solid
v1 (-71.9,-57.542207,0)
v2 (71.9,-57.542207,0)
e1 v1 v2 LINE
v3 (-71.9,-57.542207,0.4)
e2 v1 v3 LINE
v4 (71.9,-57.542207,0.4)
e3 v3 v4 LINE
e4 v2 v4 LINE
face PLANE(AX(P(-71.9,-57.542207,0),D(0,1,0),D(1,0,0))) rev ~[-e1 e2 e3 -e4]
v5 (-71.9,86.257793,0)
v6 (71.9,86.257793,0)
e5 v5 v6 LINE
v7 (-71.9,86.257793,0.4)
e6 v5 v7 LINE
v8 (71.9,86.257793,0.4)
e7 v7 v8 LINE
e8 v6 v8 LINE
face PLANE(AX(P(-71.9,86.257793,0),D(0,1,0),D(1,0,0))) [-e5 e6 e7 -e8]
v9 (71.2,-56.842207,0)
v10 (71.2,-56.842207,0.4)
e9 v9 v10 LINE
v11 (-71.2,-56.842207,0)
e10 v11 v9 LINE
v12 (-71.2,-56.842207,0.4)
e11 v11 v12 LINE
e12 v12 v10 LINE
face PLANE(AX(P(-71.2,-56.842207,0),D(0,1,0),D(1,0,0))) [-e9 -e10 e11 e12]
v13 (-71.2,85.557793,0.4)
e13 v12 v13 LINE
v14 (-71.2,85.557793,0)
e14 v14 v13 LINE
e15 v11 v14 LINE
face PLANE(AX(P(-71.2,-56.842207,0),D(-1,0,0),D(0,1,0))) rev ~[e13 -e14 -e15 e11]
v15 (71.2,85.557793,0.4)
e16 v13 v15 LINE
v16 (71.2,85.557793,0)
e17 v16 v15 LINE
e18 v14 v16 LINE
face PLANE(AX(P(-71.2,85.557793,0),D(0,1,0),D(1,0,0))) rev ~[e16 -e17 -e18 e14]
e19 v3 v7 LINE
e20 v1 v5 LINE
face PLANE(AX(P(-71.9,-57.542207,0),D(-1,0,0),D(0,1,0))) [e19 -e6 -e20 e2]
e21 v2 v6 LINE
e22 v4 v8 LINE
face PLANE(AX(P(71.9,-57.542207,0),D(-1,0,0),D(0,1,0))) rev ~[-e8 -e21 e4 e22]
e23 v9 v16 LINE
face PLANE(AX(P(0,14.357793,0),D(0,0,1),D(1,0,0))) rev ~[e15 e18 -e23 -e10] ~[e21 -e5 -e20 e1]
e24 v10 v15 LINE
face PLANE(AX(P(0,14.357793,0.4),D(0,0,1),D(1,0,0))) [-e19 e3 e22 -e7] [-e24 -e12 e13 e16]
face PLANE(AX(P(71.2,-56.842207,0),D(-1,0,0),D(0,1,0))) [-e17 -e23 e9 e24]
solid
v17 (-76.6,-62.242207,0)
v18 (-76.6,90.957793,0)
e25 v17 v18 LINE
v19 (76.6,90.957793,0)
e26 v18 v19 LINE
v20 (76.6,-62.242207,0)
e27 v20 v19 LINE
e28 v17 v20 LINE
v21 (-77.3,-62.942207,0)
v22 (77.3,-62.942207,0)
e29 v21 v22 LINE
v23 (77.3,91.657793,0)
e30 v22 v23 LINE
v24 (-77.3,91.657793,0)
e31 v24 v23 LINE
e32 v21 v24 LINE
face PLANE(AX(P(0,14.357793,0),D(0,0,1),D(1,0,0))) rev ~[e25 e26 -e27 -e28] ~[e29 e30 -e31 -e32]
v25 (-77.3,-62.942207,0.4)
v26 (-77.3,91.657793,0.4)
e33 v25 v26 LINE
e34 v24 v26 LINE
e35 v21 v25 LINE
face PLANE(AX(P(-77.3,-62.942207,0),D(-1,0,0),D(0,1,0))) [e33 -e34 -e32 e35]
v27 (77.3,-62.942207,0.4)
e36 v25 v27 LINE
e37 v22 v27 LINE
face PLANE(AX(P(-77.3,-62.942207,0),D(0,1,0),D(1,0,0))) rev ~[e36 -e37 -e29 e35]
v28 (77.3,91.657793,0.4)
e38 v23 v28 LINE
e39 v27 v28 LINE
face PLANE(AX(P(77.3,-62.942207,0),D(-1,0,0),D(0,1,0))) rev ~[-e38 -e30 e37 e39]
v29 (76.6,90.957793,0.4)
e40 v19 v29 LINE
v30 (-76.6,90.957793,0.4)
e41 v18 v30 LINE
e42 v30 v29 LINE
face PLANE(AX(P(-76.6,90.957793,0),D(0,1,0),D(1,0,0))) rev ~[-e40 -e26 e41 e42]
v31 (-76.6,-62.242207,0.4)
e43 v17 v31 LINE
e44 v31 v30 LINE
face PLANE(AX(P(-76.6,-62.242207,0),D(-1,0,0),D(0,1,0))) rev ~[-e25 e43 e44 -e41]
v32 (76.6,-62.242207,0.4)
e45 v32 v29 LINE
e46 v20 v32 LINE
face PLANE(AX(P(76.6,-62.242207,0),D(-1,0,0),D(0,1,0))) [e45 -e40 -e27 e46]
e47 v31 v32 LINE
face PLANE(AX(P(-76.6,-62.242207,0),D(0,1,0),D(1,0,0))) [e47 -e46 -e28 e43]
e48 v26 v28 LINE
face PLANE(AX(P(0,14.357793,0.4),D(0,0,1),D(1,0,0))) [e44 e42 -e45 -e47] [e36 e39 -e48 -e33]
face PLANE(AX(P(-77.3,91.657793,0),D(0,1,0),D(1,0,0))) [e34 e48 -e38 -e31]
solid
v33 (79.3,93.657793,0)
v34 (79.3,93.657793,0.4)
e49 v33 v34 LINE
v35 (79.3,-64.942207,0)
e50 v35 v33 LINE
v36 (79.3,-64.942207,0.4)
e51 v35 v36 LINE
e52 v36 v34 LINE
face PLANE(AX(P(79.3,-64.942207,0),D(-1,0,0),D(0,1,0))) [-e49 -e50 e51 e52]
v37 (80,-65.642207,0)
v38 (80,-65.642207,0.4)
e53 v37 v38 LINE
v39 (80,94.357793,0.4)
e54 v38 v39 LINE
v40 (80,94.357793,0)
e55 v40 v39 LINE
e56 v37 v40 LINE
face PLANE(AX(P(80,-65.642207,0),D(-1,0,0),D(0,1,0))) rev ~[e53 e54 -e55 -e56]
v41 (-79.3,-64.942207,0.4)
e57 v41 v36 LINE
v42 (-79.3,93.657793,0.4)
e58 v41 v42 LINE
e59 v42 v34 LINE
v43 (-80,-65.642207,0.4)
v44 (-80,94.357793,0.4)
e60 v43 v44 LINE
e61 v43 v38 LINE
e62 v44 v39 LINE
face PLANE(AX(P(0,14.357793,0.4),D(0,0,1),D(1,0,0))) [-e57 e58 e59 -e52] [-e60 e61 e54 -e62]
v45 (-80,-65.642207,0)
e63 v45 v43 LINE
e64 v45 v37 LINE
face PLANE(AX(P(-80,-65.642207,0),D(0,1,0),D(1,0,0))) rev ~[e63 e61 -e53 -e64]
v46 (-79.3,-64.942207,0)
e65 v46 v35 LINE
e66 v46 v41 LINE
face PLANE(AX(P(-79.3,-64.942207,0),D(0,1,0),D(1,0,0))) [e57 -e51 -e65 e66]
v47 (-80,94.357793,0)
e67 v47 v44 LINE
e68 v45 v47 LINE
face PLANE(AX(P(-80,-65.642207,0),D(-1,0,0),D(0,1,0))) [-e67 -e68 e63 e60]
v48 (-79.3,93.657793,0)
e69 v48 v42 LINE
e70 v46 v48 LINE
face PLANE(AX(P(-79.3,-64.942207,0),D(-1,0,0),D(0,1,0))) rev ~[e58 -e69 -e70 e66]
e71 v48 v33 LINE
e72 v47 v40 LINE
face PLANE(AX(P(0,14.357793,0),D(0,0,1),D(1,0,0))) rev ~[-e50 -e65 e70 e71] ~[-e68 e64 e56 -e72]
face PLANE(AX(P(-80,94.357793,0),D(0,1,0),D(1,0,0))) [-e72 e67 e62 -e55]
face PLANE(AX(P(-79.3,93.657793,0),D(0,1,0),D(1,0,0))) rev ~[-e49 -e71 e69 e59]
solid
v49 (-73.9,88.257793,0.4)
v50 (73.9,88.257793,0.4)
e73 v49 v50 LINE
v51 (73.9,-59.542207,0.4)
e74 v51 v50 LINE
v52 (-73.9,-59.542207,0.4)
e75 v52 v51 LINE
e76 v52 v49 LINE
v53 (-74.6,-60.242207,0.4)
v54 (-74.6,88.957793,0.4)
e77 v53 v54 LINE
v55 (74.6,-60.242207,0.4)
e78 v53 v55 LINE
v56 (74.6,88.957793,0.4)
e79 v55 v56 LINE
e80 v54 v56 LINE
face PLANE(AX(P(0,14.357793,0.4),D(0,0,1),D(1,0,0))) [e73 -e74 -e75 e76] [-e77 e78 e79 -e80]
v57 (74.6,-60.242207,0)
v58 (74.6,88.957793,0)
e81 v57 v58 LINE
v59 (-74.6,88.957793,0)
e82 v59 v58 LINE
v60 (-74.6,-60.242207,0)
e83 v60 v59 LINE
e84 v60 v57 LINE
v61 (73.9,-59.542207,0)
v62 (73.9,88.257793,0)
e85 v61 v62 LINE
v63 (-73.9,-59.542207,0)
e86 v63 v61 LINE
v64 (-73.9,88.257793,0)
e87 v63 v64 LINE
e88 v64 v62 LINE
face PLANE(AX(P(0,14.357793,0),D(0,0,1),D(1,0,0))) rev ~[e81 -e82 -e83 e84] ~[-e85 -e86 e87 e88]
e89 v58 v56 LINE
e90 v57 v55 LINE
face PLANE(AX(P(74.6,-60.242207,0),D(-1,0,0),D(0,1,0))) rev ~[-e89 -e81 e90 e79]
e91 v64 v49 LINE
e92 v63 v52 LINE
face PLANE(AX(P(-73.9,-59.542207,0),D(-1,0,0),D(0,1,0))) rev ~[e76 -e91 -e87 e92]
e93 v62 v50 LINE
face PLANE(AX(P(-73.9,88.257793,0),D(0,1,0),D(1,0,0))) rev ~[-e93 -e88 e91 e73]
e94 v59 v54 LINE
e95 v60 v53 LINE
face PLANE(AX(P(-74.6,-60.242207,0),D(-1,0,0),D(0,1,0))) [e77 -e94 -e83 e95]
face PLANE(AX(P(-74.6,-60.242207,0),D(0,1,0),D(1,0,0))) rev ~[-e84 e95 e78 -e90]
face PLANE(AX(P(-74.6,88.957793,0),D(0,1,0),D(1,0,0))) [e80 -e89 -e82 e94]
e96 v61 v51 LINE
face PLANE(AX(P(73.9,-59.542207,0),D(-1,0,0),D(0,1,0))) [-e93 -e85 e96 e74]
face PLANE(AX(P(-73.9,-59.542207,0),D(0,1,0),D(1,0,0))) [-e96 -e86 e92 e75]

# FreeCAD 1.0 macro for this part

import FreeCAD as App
import Part
import Sketcher

V = App.Vector

doc = App.newDocument("Part")
body = doc.addObject("PartDesign::Body", "Body")
body.AllowCompound = True

# Sketch on XY plane
sketch1 = doc.addObject("Sketcher::SketchObject", "Sketch")
body.addObject(sketch1)
sketch1.AttachmentSupport = (doc.XY_Plane, [""])
sketch1.MapMode = "FlatFace"
sketch1.addGeometry([
    Part.LineSegment(V(-80, 94, 0), V(-80, -66, 0)),  # 0
    Part.LineSegment(V(-80, -66, 0), V(80, -66, 0)),  # 1
    Part.LineSegment(V(80, -66, 0), V(80, 94, 0)),  # 2
    Part.LineSegment(V(80, 94, 0), V(-80, 94, 0)),  # 3
    Part.LineSegment(V(79, -65, 0), V(-79, -65, 0)),  # 4
    Part.LineSegment(V(-79, -65, 0), V(-79, 94, 0)),  # 5
    Part.LineSegment(V(-79, 94, 0), V(79, 94, 0)),  # 6
    Part.LineSegment(V(79, 94, 0), V(79, -65, 0)),  # 7
    Part.LineSegment(V(-77, 92, 0), V(-77, -63, 0)),  # 8
    Part.LineSegment(V(-77, -63, 0), V(77, -63, 0)),  # 9
    Part.LineSegment(V(77, -63, 0), V(77, 92, 0)),  # 10
    Part.LineSegment(V(77, 92, 0), V(-77, 92, 0)),  # 11
    Part.LineSegment(V(77, -62, 0), V(-77, -62, 0)),  # 12
    Part.LineSegment(V(-77, -62, 0), V(-77, 91, 0)),  # 13
    Part.LineSegment(V(-77, 91, 0), V(77, 91, 0)),  # 14
    Part.LineSegment(V(77, 91, 0), V(77, -62, 0)),  # 15
    Part.LineSegment(V(-75, 89, 0), V(-75, -60, 0)),  # 16
    Part.LineSegment(V(-75, -60, 0), V(75, -60, 0)),  # 17
    Part.LineSegment(V(75, -60, 0), V(75, 89, 0)),  # 18
    Part.LineSegment(V(75, 89, 0), V(-75, 89, 0)),  # 19
    Part.LineSegment(V(74, -60, 0), V(-74, -60, 0)),  # 20
    Part.LineSegment(V(-74, -60, 0), V(-74, 88, 0)),  # 21
    Part.LineSegment(V(-74, 88, 0), V(74, 88, 0)),  # 22
    Part.LineSegment(V(74, 88, 0), V(74, -60, 0)),  # 23
    Part.LineSegment(V(-72, 86, 0), V(-72, -58, 0)),  # 24
    Part.LineSegment(V(-72, -58, 0), V(72, -58, 0)),  # 25
    Part.LineSegment(V(72, -58, 0), V(72, 86, 0)),  # 26
    Part.LineSegment(V(72, 86, 0), V(-72, 86, 0)),  # 27
    Part.LineSegment(V(71, -57, 0), V(-71, -57, 0)),  # 28
    Part.LineSegment(V(-71, -57, 0), V(-71, 86, 0)),  # 29
    Part.LineSegment(V(-71, 86, 0), V(71, 86, 0)),  # 30
    Part.LineSegment(V(71, 86, 0), V(71, -57, 0)),  # 31
], False)
sketch1.addConstraint([
    Sketcher.Constraint("Coincident", 0, 2, 1, 1),
    Sketcher.Constraint("Coincident", 1, 2, 2, 1),
    Sketcher.Constraint("Coincident", 2, 2, 3, 1),
    Sketcher.Constraint("Coincident", 3, 2, 0, 1),
    Sketcher.Constraint("Coincident", 4, 2, 5, 1),
    Sketcher.Constraint("Coincident", 5, 2, 6, 1),
    Sketcher.Constraint("Coincident", 6, 2, 7, 1),
    Sketcher.Constraint("Coincident", 7, 2, 4, 1),
    Sketcher.Constraint("Coincident", 8, 2, 9, 1),
    Sketcher.Constraint("Coincident", 9, 2, 10, 1),
    Sketcher.Constraint("Coincident", 10, 2, 11, 1),
    Sketcher.Constraint("Coincident", 11, 2, 8, 1),
    Sketcher.Constraint("Coincident", 12, 2, 13, 1),
    Sketcher.Constraint("Coincident", 13, 2, 14, 1),
    Sketcher.Constraint("Coincident", 14, 2, 15, 1),
    Sketcher.Constraint("Coincident", 15, 2, 12, 1),
    Sketcher.Constraint("Coincident", 16, 2, 17, 1),
    Sketcher.Constraint("Coincident", 17, 2, 18, 1),
    Sketcher.Constraint("Coincident", 18, 2, 19, 1),
    Sketcher.Constraint("Coincident", 19, 2, 16, 1),
    Sketcher.Constraint("Coincident", 20, 2, 21, 1),
    Sketcher.Constraint("Coincident", 21, 2, 22, 1),
    Sketcher.Constraint("Coincident", 22, 2, 23, 1),
    Sketcher.Constraint("Coincident", 23, 2, 20, 1),
    Sketcher.Constraint("Coincident", 24, 2, 25, 1),
    Sketcher.Constraint("Coincident", 25, 2, 26, 1),
    Sketcher.Constraint("Coincident", 26, 2, 27, 1),
    Sketcher.Constraint("Coincident", 27, 2, 24, 1),
    Sketcher.Constraint("Coincident", 28, 2, 29, 1),
    Sketcher.Constraint("Coincident", 29, 2, 30, 1),
    Sketcher.Constraint("Coincident", 30, 2, 31, 1),
    Sketcher.Constraint("Coincident", 31, 2, 28, 1),
    Sketcher.Constraint("Vertical", 0),
    Sketcher.Constraint("Horizontal", 1),
    Sketcher.Constraint("Vertical", 2),
    Sketcher.Constraint("Horizontal", 3),
    Sketcher.Constraint("Horizontal", 4),
    Sketcher.Constraint("Vertical", 5),
    Sketcher.Constraint("Horizontal", 6),
    Sketcher.Constraint("Vertical", 7),
    Sketcher.Constraint("Vertical", 8),
    Sketcher.Constraint("Horizontal", 9),
    Sketcher.Constraint("Vertical", 10),
    Sketcher.Constraint("Horizontal", 11),
    Sketcher.Constraint("Horizontal", 12),
    Sketcher.Constraint("Vertical", 13),
    Sketcher.Constraint("Horizontal", 14),
    Sketcher.Constraint("Vertical", 15),
    Sketcher.Constraint("Vertical", 16),
    Sketcher.Constraint("Horizontal", 17),
    Sketcher.Constraint("Vertical", 18),
    Sketcher.Constraint("Horizontal", 19),
    Sketcher.Constraint("Horizontal", 20),
    Sketcher.Constraint("Vertical", 21),
    Sketcher.Constraint("Horizontal", 22),
    Sketcher.Constraint("Vertical", 23),
    Sketcher.Constraint("Vertical", 24),
    Sketcher.Constraint("Horizontal", 25),
    Sketcher.Constraint("Vertical", 26),
    Sketcher.Constraint("Horizontal", 27),
    Sketcher.Constraint("Horizontal", 28),
    Sketcher.Constraint("Vertical", 29),
    Sketcher.Constraint("Horizontal", 30),
    Sketcher.Constraint("Vertical", 31),
    Sketcher.Constraint("Equal", 3, 0),
    Sketcher.Constraint("Equal", 6, 5),
    Sketcher.Constraint("Equal", 11, 8),
    Sketcher.Constraint("Equal", 14, 13),
    Sketcher.Constraint("Equal", 19, 16),
    Sketcher.Constraint("Equal", 22, 21),
    Sketcher.Constraint("Equal", 27, 24),
    Sketcher.Constraint("Equal", 30, 29),
    Sketcher.Constraint("DistanceX", 1, 1, 1, 2, 160.0),
    Sketcher.Constraint("DistanceX", 4, 2, 4, 1, 158.6),
    Sketcher.Constraint("DistanceX", 9, 1, 9, 2, 154.6),
    Sketcher.Constraint("DistanceX", 12, 2, 12, 1, 153.2),
    Sketcher.Constraint("DistanceX", 17, 1, 17, 2, 149.2),
    Sketcher.Constraint("DistanceX", 20, 2, 20, 1, 147.8),
    Sketcher.Constraint("DistanceX", 25, 1, 25, 2, 143.8),
    Sketcher.Constraint("DistanceX", 28, 2, 28, 1, 142.4),
    Sketcher.Constraint("DistanceX", 0, 2, -1, 1, 80.0),
    Sketcher.Constraint("DistanceX", 4, 2, 8, 2, 2.0),
    Sketcher.Constraint("DistanceY", 4, 2, 8, 2, 2.0),
    Sketcher.Constraint("DistanceX", 12, 2, 16, 2, 2.0),
    Sketcher.Constraint("DistanceY", 12, 2, 16, 2, 2.0),
    Sketcher.Constraint("DistanceX", 20, 2, 24, 2, 2.0),
    Sketcher.Constraint("DistanceY", 20, 2, 24, 2, 2.0),
    Sketcher.Constraint("DistanceX", 4, 2, -1, 1, 79.3),
    Sketcher.Constraint("DistanceX", 12, 2, -1, 1, 76.6),
    Sketcher.Constraint("DistanceX", 20, 2, -1, 1, 73.9),
    Sketcher.Constraint("DistanceX", 28, 2, -1, 1, 71.2),
    Sketcher.Constraint("DistanceY", 0, 2, 4, 2, 0.7),
    Sketcher.Constraint("DistanceY", 8, 2, 12, 2, 0.7),
    Sketcher.Constraint("DistanceY", 16, 2, 20, 2, 0.7),
    Sketcher.Constraint("DistanceY", 24, 2, 28, 2, 0.7),
    Sketcher.Constraint("DistanceY", 0, 2, -1, 1, 65.642207),
])
pad1 = doc.addObject("PartDesign::Pad", "Pad")
body.addObject(pad1)
pad1.Profile = sketch1
pad1.Length = 0.4

doc.recompute()
